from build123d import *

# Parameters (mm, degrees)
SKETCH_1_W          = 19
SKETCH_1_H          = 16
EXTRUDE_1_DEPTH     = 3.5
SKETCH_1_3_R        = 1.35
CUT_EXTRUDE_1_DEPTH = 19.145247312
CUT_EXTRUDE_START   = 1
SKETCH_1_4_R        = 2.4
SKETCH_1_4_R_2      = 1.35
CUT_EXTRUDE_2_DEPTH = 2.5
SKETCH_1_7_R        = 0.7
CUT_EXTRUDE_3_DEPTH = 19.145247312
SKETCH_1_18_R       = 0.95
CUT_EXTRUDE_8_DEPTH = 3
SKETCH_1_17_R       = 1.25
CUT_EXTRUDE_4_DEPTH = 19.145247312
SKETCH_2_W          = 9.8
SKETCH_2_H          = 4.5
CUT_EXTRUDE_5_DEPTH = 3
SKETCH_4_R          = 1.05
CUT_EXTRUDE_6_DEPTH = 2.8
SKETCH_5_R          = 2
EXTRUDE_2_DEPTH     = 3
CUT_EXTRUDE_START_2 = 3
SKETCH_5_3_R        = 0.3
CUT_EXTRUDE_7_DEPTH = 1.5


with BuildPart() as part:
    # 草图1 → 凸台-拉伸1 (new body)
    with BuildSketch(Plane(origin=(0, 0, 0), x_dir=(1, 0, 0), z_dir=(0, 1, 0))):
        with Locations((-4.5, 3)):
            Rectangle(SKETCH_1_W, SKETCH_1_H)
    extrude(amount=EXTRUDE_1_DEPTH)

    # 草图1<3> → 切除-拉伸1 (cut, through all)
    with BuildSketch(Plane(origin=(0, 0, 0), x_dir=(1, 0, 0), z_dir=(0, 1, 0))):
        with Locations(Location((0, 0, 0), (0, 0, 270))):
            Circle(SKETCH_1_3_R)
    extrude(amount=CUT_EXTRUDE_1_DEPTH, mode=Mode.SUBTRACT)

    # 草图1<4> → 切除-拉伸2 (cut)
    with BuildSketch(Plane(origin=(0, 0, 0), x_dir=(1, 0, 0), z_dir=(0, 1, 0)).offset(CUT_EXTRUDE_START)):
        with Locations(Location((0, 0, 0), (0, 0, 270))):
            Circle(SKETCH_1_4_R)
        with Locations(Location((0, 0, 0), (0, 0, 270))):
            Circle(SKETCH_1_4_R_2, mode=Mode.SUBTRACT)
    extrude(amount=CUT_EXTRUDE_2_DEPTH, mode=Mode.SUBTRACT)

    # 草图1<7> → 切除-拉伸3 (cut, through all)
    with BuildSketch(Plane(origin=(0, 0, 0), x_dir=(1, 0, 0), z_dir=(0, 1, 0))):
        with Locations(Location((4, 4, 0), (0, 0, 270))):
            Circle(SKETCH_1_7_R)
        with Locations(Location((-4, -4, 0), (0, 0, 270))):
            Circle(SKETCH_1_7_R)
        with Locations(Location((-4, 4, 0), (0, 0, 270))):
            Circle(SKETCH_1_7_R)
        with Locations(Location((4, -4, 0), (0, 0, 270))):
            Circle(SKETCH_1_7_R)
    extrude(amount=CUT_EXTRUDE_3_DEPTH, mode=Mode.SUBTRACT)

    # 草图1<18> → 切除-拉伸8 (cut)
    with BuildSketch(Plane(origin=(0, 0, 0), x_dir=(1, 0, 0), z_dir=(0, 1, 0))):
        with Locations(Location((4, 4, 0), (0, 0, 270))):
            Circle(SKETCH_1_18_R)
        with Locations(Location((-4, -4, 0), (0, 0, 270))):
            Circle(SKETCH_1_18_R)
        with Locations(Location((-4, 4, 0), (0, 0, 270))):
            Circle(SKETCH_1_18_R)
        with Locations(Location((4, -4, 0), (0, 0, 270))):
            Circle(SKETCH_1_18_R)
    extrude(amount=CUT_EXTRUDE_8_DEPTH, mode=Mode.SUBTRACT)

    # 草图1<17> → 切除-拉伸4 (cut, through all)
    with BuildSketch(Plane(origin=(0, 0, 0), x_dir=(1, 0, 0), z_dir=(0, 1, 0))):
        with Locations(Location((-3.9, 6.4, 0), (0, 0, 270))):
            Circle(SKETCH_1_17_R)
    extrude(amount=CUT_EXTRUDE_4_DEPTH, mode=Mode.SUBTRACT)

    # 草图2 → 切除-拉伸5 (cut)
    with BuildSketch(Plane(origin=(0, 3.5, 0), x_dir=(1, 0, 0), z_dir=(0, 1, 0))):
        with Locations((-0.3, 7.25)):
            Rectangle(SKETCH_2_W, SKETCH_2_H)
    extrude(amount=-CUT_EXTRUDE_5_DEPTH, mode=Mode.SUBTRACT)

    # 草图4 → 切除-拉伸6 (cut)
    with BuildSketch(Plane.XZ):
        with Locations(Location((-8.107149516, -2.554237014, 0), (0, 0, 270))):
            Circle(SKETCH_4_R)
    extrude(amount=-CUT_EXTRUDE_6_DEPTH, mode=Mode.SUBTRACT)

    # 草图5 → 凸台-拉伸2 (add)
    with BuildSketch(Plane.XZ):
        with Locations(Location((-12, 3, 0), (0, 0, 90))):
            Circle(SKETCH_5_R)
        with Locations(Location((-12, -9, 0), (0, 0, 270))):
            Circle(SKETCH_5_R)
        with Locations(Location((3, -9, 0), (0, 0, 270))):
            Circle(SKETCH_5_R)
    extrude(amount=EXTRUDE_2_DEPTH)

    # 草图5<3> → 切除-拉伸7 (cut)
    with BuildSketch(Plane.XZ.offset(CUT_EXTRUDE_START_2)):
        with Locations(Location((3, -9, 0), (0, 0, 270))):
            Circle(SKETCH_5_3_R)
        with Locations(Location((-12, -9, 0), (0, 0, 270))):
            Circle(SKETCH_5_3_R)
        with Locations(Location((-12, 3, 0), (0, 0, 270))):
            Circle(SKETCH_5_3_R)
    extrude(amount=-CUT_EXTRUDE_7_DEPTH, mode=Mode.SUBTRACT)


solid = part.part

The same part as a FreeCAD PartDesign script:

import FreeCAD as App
import Part
import Sketcher
from FreeCAD import Vector


def add_polygon(sketch, points):
    """Adds a closed chain of lines whose ends are joined by coincident constraints."""
    first, n = sketch.GeometryCount, len(points)
    for a, b in zip(points, points[1:] + points[:1]):
        sketch.addGeometry(Part.LineSegment(App.Vector(*a, 0), App.Vector(*b, 0)), False)
    for i in range(n):
        sketch.addConstraint(Sketcher.Constraint("Coincident", first + i, 2, first + (i + 1) % n, 1))

doc = App.newDocument("Part")
body = doc.addObject("PartDesign::Body", "Body")

# Sketch on XZ plane
sketch1 = body.newObject("Sketcher::SketchObject", "Sketch")
sketch1.AttachmentSupport = (doc.getObject("XZ_Plane"), [""])
sketch1.MapMode = "FlatFace"
add_polygon(sketch1, [(-14, -11), (-14, 5), (5, 5), (5, -11)])  # lines 0-3
sketch1.addConstraint([
    Sketcher.Constraint("Vertical", 0),
    Sketcher.Constraint("Horizontal", 1),
    Sketcher.Constraint("Vertical", 2),
    Sketcher.Constraint("Horizontal", 3),
    Sketcher.Constraint("DistanceX", 1, 1, 1, 2, 19.0),
    Sketcher.Constraint("DistanceY", 0, 1, 0, 2, 16.0),
    Sketcher.Constraint("DistanceX", 0, 2, -1, 1, 14.0),
    Sketcher.Constraint("DistanceY", -1, 1, 0, 2, 5.0),
])
pad1 = body.newObject("PartDesign::Pad", "Pad")
pad1.Profile = sketch1
pad1.Length = 3.5
pad1.Reversed = True

# Sketch on XZ plane
sketch2 = body.newObject("Sketcher::SketchObject", "Sketch001")
sketch2.AttachmentSupport = (doc.getObject("XZ_Plane"), [""])
sketch2.MapMode = "FlatFace"
sketch2.addGeometry(Part.Circle(Vector(0, 0, 0), Vector(0, 0, 1), 1.35), False)
sketch2.addConstraint([
    Sketcher.Constraint("Coincident", 0, 3, -1, 1),
    Sketcher.Constraint("Diameter", 0, 2.7),
])
pocket1 = body.newObject("PartDesign::Pocket", "Pocket")
pocket1.Profile = sketch2
pocket1.Type = "ThroughAll"

# Sketch on XZ plane
sketch3 = body.newObject("Sketcher::SketchObject", "Sketch002")
sketch3.AttachmentSupport = (doc.getObject("XZ_Plane"), [""])
sketch3.MapMode = "FlatFace"
sketch3.AttachmentOffset = App.Placement(Vector(0, 0, -1), App.Rotation())
sketch3.addGeometry([
    Part.Circle(Vector(0, 0, 0), Vector(0, 0, 1), 2.4),
    Part.Circle(Vector(0, 0, 0), Vector(0, 0, 1), 1.35),
], False)
sketch3.addConstraint([
    Sketcher.Constraint("Coincident", 0, 3, -1, 1),
    Sketcher.Constraint("Coincident", 1, 3, -1, 1),
    Sketcher.Constraint("Diameter", 0, 4.8),
    Sketcher.Constraint("Diameter", 1, 2.7),
])
pocket2 = body.newObject("PartDesign::Pocket", "Pocket001")
pocket2.Profile = sketch3
pocket2.Length = 2.5

# Sketch on XZ plane
sketch4 = body.newObject("Sketcher::SketchObject", "Sketch003")
sketch4.AttachmentSupport = (doc.getObject("XZ_Plane"), [""])
sketch4.MapMode = "FlatFace"
sketch4.addGeometry([
    Part.Circle(Vector(4, -4, 0), Vector(0, 0, 1), 0.7),
    Part.Circle(Vector(-4, 4, 0), Vector(0, 0, 1), 0.7),
    Part.Circle(Vector(-4, -4, 0), Vector(0, 0, 1), 0.7),
    Part.Circle(Vector(4, 4, 0), Vector(0, 0, 1), 0.7),
], False)
sketch4.addConstraint([
    Sketcher.Constraint("Equal", 0, 1),
    Sketcher.Constraint("Equal", 1, 2),
    Sketcher.Constraint("Equal", 2, 3),
    Sketcher.Constraint("Symmetric", 0, 3, 1, 3, -1, 1),
    Sketcher.Constraint("Symmetric", 2, 3, 3, 3, -1, 1),
    Sketcher.Constraint("Symmetric", 0, 3, 2, 3, -2),
    Sketcher.Constraint("Diameter", 0, 1.4),
    Sketcher.Constraint("DistanceX", -1, 1, 0, 3, 4.0),
    Sketcher.Constraint("DistanceY", 0, 3, -1, 1, 4.0),
])
pocket3 = body.newObject("PartDesign::Pocket", "Pocket002")
pocket3.Profile = sketch4
pocket3.Type = "ThroughAll"

# Sketch on XZ plane
sketch5 = body.newObject("Sketcher::SketchObject", "Sketch004")
sketch5.AttachmentSupport = (doc.getObject("XZ_Plane"), [""])
sketch5.MapMode = "FlatFace"
sketch5.addGeometry([
    Part.Circle(Vector(4, -4, 0), Vector(0, 0, 1), 0.95),
    Part.Circle(Vector(-4, 4, 0), Vector(0, 0, 1), 0.95),
    Part.Circle(Vector(-4, -4, 0), Vector(0, 0, 1), 0.95),
    Part.Circle(Vector(4, 4, 0), Vector(0, 0, 1), 0.95),
], False)
sketch5.addConstraint([
    Sketcher.Constraint("Equal", 0, 1),
    Sketcher.Constraint("Equal", 1, 2),
    Sketcher.Constraint("Equal", 2, 3),
    Sketcher.Constraint("Symmetric", 0, 3, 1, 3, -1, 1),
    Sketcher.Constraint("Symmetric", 2, 3, 3, 3, -1, 1),
    Sketcher.Constraint("Symmetric", 0, 3, 2, 3, -2),
    Sketcher.Constraint("Diameter", 0, 1.9),
    Sketcher.Constraint("DistanceX", -1, 1, 0, 3, 4.0),
    Sketcher.Constraint("DistanceY", 0, 3, -1, 1, 4.0),
])
pocket4 = body.newObject("PartDesign::Pocket", "Pocket003")
pocket4.Profile = sketch5
pocket4.Length = 3

# Sketch on XZ plane
sketch6 = body.newObject("Sketcher::SketchObject", "Sketch005")
sketch6.AttachmentSupport = (doc.getObject("XZ_Plane"), [""])
sketch6.MapMode = "FlatFace"
sketch6.addGeometry(Part.Circle(Vector(-3.9, -6.4, 0), Vector(0, 0, 1), 1.25), False)
sketch6.addConstraint([
    Sketcher.Constraint("Diameter", 0, 2.5),
    Sketcher.Constraint("DistanceX", 0, 3, -1, 1, 3.9),
    Sketcher.Constraint("DistanceY", 0, 3, -1, 1, 6.4),
])
pocket5 = body.newObject("PartDesign::Pocket", "Pocket004")
pocket5.Profile = sketch6
pocket5.Type = "ThroughAll"

# Sketch on XZ plane
sketch7 = body.newObject("Sketcher::SketchObject", "Sketch006")
sketch7.AttachmentSupport = (doc.getObject("XZ_Plane"), [""])
sketch7.MapMode = "FlatFace"
sketch7.AttachmentOffset = App.Placement(Vector(0, 0, -3.5), App.Rotation())
add_polygon(sketch7, [(-5.2, -9.5), (-5.2, -5), (4.6, -5), (4.6, -9.5)])  # lines 0-3
sketch7.addConstraint([
    Sketcher.Constraint("Vertical", 0),
    Sketcher.Constraint("Horizontal", 1),
    Sketcher.Constraint("Vertical", 2),
    Sketcher.Constraint("Horizontal", 3),
    Sketcher.Constraint("DistanceX", 1, 1, 1, 2, 9.8),
    Sketcher.Constraint("DistanceY", 0, 1, 0, 2, 4.5),
    Sketcher.Constraint("DistanceY", 0, 2, -1, 1, 5.0),
    Sketcher.Constraint("DistanceX", 0, 2, -1, 1, 5.2),
])
pocket6 = body.newObject("PartDesign::Pocket", "Pocket005")
pocket6.Profile = sketch7
pocket6.Length = 3
pocket6.Reversed = True

# Sketch on XZ plane
sketch8 = body.newObject("Sketcher::SketchObject", "Sketch007")
sketch8.AttachmentSupport = (doc.getObject("XZ_Plane"), [""])
sketch8.MapMode = "FlatFace"
sketch8.addGeometry(Part.Circle(Vector(-8.10715, -2.554237, 0), Vector(0, 0, 1), 1.05), False)
sketch8.addConstraint([
    Sketcher.Constraint("Diameter", 0, 2.1),
    Sketcher.Constraint("DistanceX", 0, 3, -1, 1, 8.10715),
    Sketcher.Constraint("DistanceY", 0, 3, -1, 1, 2.554237),
])
pocket7 = body.newObject("PartDesign::Pocket", "Pocket006")
pocket7.Profile = sketch8
pocket7.Length = 2.8

# Sketch on XZ plane
sketch9 = body.newObject("Sketcher::SketchObject", "Sketch008")
sketch9.AttachmentSupport = (doc.getObject("XZ_Plane"), [""])
sketch9.MapMode = "FlatFace"
sketch9.addGeometry([
    Part.Circle(Vector(-12, 3, 0), Vector(0, 0, 1), 2),
    Part.Circle(Vector(-12, -9, 0), Vector(0, 0, 1), 2),
    Part.Circle(Vector(3, -9, 0), Vector(0, 0, 1), 2),
], False)
sketch9.addConstraint([
    Sketcher.Constraint("Equal", 0, 1),
    Sketcher.Constraint("Equal", 1, 2),
    Sketcher.Constraint("Horizontal", 1, 3, 2, 3),
    Sketcher.Constraint("Vertical", 0, 3, 1, 3),
    Sketcher.Constraint("Diameter", 0, 4.0),
    Sketcher.Constraint("DistanceX", 0, 3, -1, 1, 12.0),
    Sketcher.Constraint("DistanceY", -1, 1, 0, 3, 3.0),
    Sketcher.Constraint("DistanceY", 1, 3, -1, 1, 9.0),
    Sketcher.Constraint("DistanceX", -1, 1, 2, 3, 3.0),
])
pad2 = body.newObject("PartDesign::Pad", "Pad001")
pad2.Profile = sketch9
pad2.Length = 3

# Sketch on XZ plane
sketch10 = body.newObject("Sketcher::SketchObject", "Sketch009")
sketch10.AttachmentSupport = (doc.getObject("XZ_Plane"), [""])
sketch10.MapMode = "FlatFace"
sketch10.AttachmentOffset = App.Placement(Vector(0, 0, 3), App.Rotation())
sketch10.addGeometry([
    Part.Circle(Vector(3, -9, 0), Vector(0, 0, 1), 0.3),
    Part.Circle(Vector(-12, -9, 0), Vector(0, 0, 1), 0.3),
    Part.Circle(Vector(-12, 3, 0), Vector(0, 0, 1), 0.3),
], False)
sketch10.addConstraint([
    Sketcher.Constraint("Equal", 0, 1),
    Sketcher.Constraint("Equal", 1, 2),
    Sketcher.Constraint("Horizontal", 0, 3, 1, 3),
    Sketcher.Constraint("Vertical", 1, 3, 2, 3),
    Sketcher.Constraint("Diameter", 0, 0.6),
    Sketcher.Constraint("DistanceX", -1, 1, 0, 3, 3.0),
    Sketcher.Constraint("DistanceY", 0, 3, -1, 1, 9.0),
    Sketcher.Constraint("DistanceX", 1, 3, -1, 1, 12.0),
    Sketcher.Constraint("DistanceY", -1, 1, 2, 3, 3.0),
])
pocket8 = body.newObject("PartDesign::Pocket", "Pocket007")
pocket8.Profile = sketch10
pocket8.Length = 1.5

doc.recompute()
